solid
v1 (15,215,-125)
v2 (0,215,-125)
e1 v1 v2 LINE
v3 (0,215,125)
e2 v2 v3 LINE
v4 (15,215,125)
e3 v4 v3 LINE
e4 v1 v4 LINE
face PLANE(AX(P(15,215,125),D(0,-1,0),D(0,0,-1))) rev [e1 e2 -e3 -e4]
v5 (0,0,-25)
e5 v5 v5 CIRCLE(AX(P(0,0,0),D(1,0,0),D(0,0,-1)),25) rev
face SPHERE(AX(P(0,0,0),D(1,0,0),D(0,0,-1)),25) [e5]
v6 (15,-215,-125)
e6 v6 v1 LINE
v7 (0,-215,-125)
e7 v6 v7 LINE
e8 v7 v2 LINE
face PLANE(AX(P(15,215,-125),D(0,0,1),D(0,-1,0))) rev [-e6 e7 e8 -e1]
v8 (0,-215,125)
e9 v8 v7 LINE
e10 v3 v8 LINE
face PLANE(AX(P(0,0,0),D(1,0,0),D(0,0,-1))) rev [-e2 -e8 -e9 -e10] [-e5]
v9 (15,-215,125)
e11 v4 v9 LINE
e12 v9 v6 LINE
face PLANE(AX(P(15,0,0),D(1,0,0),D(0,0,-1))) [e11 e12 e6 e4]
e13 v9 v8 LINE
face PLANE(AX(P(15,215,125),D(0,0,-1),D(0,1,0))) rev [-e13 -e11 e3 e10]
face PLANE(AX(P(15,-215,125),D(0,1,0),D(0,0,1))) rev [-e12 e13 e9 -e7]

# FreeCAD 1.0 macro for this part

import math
import FreeCAD as App
import Part
import Sketcher
from FreeCAD import Vector

doc = App.newDocument("Part")
params = doc.addObject("Spreadsheet::Sheet", "Params")
for row, (alias, value) in enumerate([
    ("sketch1_width", "430 mm"),
    ("sketch1_height", "250 mm"),
    ("pad1_length", "15 mm"),
    ("sketch2_radius", "25 mm"),
    ("revolution_angle", "180 deg"),
], start=1):
    params.set(f"A{row}", alias)
    params.set(f"B{row}", "=" + value)
    params.setAlias(f"B{row}", alias)

body = doc.addObject("PartDesign::Body", "Body")

# Sketch on YZ plane
sketch1 = body.newObject("Sketcher::SketchObject", "Sketch")
sketch1.AttachmentSupport = (doc.getObject("YZ_Plane"), [""])
sketch1.MapMode = "FlatFace"
sketch1.addGeometry([
    Part.LineSegment(Vector(215, 125, 0), Vector(-215, 125, 0)),
    Part.LineSegment(Vector(-215, 125, 0), Vector(-215, -125, 0)),
    Part.LineSegment(Vector(-215, -125, 0), Vector(215, -125, 0)),
    Part.LineSegment(Vector(215, -125, 0), Vector(215, 125, 0)),
], False)
sketch1.addConstraint([
    Sketcher.Constraint("Coincident", 0, 2, 1, 1),
    Sketcher.Constraint("Coincident", 1, 2, 2, 1),
    Sketcher.Constraint("Coincident", 2, 2, 3, 1),
    Sketcher.Constraint("Coincident", 3, 2, 0, 1),
    Sketcher.Constraint("Horizontal", 0),
    Sketcher.Constraint("Vertical", 1),
    Sketcher.Constraint("Horizontal", 2),
    Sketcher.Constraint("Vertical", 3),
    Sketcher.Constraint("Symmetric", 0, 2, 2, 2, -1, 1),
    Sketcher.Constraint("DistanceX", 0, 2, 0, 1, 430.0),
    Sketcher.Constraint("DistanceY", 1, 2, 1, 1, 250.0),
])
sketch1.setExpression("Constraints[9]", "Params.sketch1_width")
sketch1.setExpression("Constraints[10]", "Params.sketch1_height")
pad1 = body.newObject("PartDesign::Pad", "Pad")
pad1.Profile = sketch1
pad1.setExpression("Length", "Params.pad1_length")

# Sketch on YZ plane
sketch2 = body.newObject("Sketcher::SketchObject", "Sketch001")
sketch2.AttachmentSupport = (doc.getObject("YZ_Plane"), [""])
sketch2.MapMode = "FlatFace"
sketch2.addGeometry([
    Part.LineSegment(Vector(0, 25, 0), Vector(0, -25, 0)),
    Part.ArcOfCircle(Part.Circle(Vector(0, 0, 0), Vector(0, 0, 1), 25), math.radians(90), math.radians(270)),
], False)
sketch2.addConstraint([
    Sketcher.Constraint("Coincident", 0, 1, 1, 1),
    Sketcher.Constraint("Coincident", 1, 2, 0, 2),
    Sketcher.Constraint("Vertical", 0),
    Sketcher.Constraint("Coincident", 1, 3, -1, 1),
    Sketcher.Constraint("PointOnObject", 0, 1, -2),
    Sketcher.Constraint("Radius", 1, 25.0),
])
sketch2.setExpression("Constraints[5]", "Params.sketch2_radius")
revolution = body.newObject("PartDesign::Revolution", "Revolution")
revolution.Profile = sketch2
revolution.ReferenceAxis = (sketch2, ["V_Axis"])
revolution.setExpression("Angle", "Params.revolution_angle")
revolution.Reversed = True

doc.recompute()
